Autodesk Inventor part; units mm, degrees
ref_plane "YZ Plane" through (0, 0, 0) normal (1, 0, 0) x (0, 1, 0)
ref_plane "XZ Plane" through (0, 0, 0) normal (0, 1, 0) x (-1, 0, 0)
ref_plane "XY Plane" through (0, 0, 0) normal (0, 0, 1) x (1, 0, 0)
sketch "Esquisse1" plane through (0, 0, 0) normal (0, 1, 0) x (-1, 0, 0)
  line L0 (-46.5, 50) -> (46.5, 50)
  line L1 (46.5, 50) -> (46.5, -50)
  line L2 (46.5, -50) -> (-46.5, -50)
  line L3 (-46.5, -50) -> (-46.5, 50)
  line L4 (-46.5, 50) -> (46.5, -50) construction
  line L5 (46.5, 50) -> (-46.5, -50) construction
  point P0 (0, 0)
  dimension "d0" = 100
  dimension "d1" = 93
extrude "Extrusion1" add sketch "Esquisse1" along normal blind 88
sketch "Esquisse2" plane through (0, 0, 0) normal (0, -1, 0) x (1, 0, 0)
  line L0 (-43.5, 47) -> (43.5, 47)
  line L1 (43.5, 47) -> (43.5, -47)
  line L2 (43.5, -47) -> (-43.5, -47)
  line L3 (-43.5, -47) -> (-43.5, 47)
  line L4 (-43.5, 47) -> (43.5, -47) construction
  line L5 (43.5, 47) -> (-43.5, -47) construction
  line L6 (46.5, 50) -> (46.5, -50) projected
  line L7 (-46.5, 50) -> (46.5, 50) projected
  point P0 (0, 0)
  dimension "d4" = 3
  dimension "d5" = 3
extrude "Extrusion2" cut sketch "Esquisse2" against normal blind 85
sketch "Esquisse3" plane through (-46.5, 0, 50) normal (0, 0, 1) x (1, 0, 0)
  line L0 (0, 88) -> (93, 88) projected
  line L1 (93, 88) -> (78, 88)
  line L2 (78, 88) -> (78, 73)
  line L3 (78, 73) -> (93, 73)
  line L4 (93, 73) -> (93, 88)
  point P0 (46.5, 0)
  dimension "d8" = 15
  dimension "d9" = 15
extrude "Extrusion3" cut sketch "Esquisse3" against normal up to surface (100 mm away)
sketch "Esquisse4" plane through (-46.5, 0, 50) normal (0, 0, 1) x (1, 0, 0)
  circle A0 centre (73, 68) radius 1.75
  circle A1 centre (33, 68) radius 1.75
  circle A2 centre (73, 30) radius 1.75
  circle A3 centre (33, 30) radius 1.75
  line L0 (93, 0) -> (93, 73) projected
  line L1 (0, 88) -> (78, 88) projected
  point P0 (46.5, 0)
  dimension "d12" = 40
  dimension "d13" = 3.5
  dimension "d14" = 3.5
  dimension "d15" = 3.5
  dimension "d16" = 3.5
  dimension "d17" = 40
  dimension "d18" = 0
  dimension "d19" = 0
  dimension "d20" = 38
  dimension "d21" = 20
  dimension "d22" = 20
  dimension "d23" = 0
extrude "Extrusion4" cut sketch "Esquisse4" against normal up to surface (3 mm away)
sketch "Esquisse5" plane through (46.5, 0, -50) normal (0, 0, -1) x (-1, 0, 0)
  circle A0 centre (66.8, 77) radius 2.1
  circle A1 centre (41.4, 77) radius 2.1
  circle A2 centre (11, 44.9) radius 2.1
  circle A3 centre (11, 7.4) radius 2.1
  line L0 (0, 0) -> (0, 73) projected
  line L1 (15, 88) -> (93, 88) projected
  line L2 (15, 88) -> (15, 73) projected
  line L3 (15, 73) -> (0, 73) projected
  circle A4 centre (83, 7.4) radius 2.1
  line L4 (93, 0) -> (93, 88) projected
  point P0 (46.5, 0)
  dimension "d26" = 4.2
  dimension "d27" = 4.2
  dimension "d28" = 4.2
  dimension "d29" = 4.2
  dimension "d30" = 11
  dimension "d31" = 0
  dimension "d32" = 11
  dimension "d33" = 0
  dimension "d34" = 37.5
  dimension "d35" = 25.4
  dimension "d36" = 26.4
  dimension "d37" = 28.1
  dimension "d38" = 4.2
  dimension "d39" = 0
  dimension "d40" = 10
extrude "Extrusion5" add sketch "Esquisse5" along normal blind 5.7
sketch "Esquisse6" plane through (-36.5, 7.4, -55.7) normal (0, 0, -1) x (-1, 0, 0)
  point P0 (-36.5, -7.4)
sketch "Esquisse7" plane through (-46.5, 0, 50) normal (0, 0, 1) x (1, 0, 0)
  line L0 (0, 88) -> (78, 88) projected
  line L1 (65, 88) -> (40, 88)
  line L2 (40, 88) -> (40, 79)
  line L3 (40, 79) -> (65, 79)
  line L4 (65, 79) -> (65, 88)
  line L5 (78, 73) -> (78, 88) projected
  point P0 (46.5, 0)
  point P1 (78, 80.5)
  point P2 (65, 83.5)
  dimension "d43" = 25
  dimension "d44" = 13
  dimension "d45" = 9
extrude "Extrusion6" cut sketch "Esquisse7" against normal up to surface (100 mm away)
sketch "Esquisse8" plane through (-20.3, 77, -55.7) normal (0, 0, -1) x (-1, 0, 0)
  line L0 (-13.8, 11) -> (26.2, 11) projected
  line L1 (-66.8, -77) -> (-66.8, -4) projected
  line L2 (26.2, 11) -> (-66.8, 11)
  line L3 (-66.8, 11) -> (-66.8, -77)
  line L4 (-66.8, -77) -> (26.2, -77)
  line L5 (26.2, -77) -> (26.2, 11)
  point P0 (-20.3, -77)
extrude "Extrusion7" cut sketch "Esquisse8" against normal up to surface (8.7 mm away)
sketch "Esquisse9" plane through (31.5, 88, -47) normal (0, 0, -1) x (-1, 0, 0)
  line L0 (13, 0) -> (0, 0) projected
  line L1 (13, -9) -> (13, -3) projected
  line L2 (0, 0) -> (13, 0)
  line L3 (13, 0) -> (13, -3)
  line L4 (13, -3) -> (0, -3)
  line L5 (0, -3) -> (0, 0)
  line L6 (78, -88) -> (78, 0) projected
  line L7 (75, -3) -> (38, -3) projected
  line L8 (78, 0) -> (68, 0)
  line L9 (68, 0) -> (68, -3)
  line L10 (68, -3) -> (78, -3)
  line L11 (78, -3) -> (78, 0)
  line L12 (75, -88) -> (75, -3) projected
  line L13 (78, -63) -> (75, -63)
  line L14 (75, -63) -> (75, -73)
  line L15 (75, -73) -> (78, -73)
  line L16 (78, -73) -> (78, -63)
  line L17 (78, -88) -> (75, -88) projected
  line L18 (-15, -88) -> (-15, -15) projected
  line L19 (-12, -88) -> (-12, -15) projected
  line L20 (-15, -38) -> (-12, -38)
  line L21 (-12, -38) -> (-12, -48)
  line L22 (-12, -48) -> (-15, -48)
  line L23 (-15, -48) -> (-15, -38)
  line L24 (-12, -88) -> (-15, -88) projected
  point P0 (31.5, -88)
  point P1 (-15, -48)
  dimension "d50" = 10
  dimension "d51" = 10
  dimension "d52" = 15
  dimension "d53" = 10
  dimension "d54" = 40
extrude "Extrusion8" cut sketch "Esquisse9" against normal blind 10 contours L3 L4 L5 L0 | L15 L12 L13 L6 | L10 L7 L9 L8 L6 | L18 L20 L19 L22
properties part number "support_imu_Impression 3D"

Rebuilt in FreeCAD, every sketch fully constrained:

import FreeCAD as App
import Part
import Sketcher

V = App.Vector
Q = App.Units.Quantity

doc = App.newDocument("Part")
body = doc.addObject("PartDesign::Body", "Body")

# Sketch on XZ plane
sketch1 = body.newObject("Sketcher::SketchObject", "Sketch")
sketch1.AttachmentSupport = (doc.getObject("XZ_Plane"), [""])
sketch1.MapMode = "FlatFace"
sketch1.addGeometry(Part.LineSegment(V(-46, 50, 0), V(46, 50, 0)), False)
sketch1.addGeometry(Part.LineSegment(V(46, 50, 0), V(46, -50, 0)), False)
sketch1.addGeometry(Part.LineSegment(V(46, -50, 0), V(-46, -50, 0)), False)
sketch1.addGeometry(Part.LineSegment(V(-46, -50, 0), V(-46, 50, 0)), False)
sketch1.addConstraint(Sketcher.Constraint("Coincident", 0, 2, 1, 1))
sketch1.addConstraint(Sketcher.Constraint("Coincident", 1, 2, 2, 1))
sketch1.addConstraint(Sketcher.Constraint("Coincident", 2, 2, 3, 1))
sketch1.addConstraint(Sketcher.Constraint("Coincident", 3, 2, 0, 1))
sketch1.addConstraint(Sketcher.Constraint("Horizontal", 0))
sketch1.addConstraint(Sketcher.Constraint("Vertical", 1))
sketch1.addConstraint(Sketcher.Constraint("Horizontal", 2))
sketch1.addConstraint(Sketcher.Constraint("Vertical", 3))
sketch1.addConstraint(Sketcher.Constraint("Symmetric", 0, 2, 2, 2, -1, 1))
sketch1.addConstraint(Sketcher.Constraint("DistanceX", 0, 1, 0, 2, Q("93 mm")))
sketch1.addConstraint(Sketcher.Constraint("DistanceY", 1, 2, 1, 1, Q("100 mm")))
pad1 = body.newObject("PartDesign::Pad", "Pad")
pad1.Profile = sketch1
pad1.Length = 88
pad1.Reversed = True

# Sketch on XZ plane
sketch2 = body.newObject("Sketcher::SketchObject", "Sketch001")
sketch2.AttachmentSupport = (doc.getObject("XZ_Plane"), [""])
sketch2.MapMode = "FlatFace"
sketch2.addGeometry(Part.LineSegment(V(44, 47, 0), V(-44, 47, 0)), False)
sketch2.addGeometry(Part.LineSegment(V(-44, 47, 0), V(-44, -47, 0)), False)
sketch2.addGeometry(Part.LineSegment(V(-44, -47, 0), V(44, -47, 0)), False)
sketch2.addGeometry(Part.LineSegment(V(44, -47, 0), V(44, 47, 0)), False)
sketch2.addConstraint(Sketcher.Constraint("Coincident", 0, 2, 1, 1))
sketch2.addConstraint(Sketcher.Constraint("Coincident", 1, 2, 2, 1))
sketch2.addConstraint(Sketcher.Constraint("Coincident", 2, 2, 3, 1))
sketch2.addConstraint(Sketcher.Constraint("Coincident", 3, 2, 0, 1))
sketch2.addConstraint(Sketcher.Constraint("Horizontal", 0))
sketch2.addConstraint(Sketcher.Constraint("Vertical", 1))
sketch2.addConstraint(Sketcher.Constraint("Horizontal", 2))
sketch2.addConstraint(Sketcher.Constraint("Vertical", 3))
sketch2.addConstraint(Sketcher.Constraint("Symmetric", 0, 2, 2, 2, -1, 1))
sketch2.addConstraint(Sketcher.Constraint("DistanceX", 0, 2, 0, 1, Q("87 mm")))
sketch2.addConstraint(Sketcher.Constraint("DistanceY", 1, 2, 1, 1, Q("94 mm")))
pocket1 = body.newObject("PartDesign::Pocket", "Pocket")
pocket1.Profile = sketch2
pocket1.Length = 85

# Sketch on XY plane
sketch3 = body.newObject("Sketcher::SketchObject", "Sketch002")
sketch3.AttachmentSupport = (doc.getObject("XY_Plane"), [""])
sketch3.MapMode = "FlatFace"
sketch3.AttachmentOffset = App.Placement(V(0, 0, 50), App.Rotation())
sketch3.addGeometry(Part.LineSegment(V(46, 88, 0), V(32, 88, 0)), False)
sketch3.addGeometry(Part.LineSegment(V(32, 88, 0), V(32, 73, 0)), False)
sketch3.addGeometry(Part.LineSegment(V(32, 73, 0), V(46, 73, 0)), False)
sketch3.addGeometry(Part.LineSegment(V(46, 73, 0), V(46, 88, 0)), False)
sketch3.addConstraint(Sketcher.Constraint("Coincident", 0, 2, 1, 1))
sketch3.addConstraint(Sketcher.Constraint("Coincident", 1, 2, 2, 1))
sketch3.addConstraint(Sketcher.Constraint("Coincident", 2, 2, 3, 1))
sketch3.addConstraint(Sketcher.Constraint("Coincident", 3, 2, 0, 1))
sketch3.addConstraint(Sketcher.Constraint("Horizontal", 0))
sketch3.addConstraint(Sketcher.Constraint("Vertical", 1))
sketch3.addConstraint(Sketcher.Constraint("Horizontal", 2))
sketch3.addConstraint(Sketcher.Constraint("Vertical", 3))
sketch3.addConstraint(Sketcher.Constraint("Equal", 2, 1))
sketch3.addConstraint(Sketcher.Constraint("DistanceX", 0, 2, 0, 1, Q("15 mm")))
sketch3.addConstraint(Sketcher.Constraint("DistanceY", -1, 1, 0, 2, Q("88 mm")))
sketch3.addConstraint(Sketcher.Constraint("DistanceX", -1, 1, 0, 2, Q("31.5 mm")))
pocket2 = body.newObject("PartDesign::Pocket", "Pocket001")
pocket2.Profile = sketch3
pocket2.Length = 100

# Sketch on XY plane
sketch4 = body.newObject("Sketcher::SketchObject", "Sketch003")
sketch4.AttachmentSupport = (doc.getObject("XY_Plane"), [""])
sketch4.MapMode = "FlatFace"
sketch4.AttachmentOffset = App.Placement(V(0, 0, 50), App.Rotation())
sketch4.addGeometry(Part.Circle(V(26.5, 68, 0), V(0, 0, 1), 1.8), False)
sketch4.addGeometry(Part.Circle(V(-13.5, 68, 0), V(0, 0, 1), 1.8), False)
sketch4.addGeometry(Part.Circle(V(26.5, 30, 0), V(0, 0, 1), 1.8), False)
sketch4.addGeometry(Part.Circle(V(-13.5, 30, 0), V(0, 0, 1), 1.8), False)
sketch4.addConstraint(Sketcher.Constraint("Equal", 0, 1))
sketch4.addConstraint(Sketcher.Constraint("Equal", 1, 2))
sketch4.addConstraint(Sketcher.Constraint("Equal", 2, 3))
sketch4.addConstraint(Sketcher.Constraint("Horizontal", 0, 3, 1, 3))
sketch4.addConstraint(Sketcher.Constraint("Horizontal", 2, 3, 3, 3))
sketch4.addConstraint(Sketcher.Constraint("Vertical", 0, 3, 2, 3))
sketch4.addConstraint(Sketcher.Constraint("Vertical", 1, 3, 3, 3))
sketch4.addConstraint(Sketcher.Constraint("Diameter", 0, Q("3.5 mm")))
sketch4.addConstraint(Sketcher.Constraint("DistanceX", 1, 3, 0, 3, Q("40 mm")))
sketch4.addConstraint(Sketcher.Constraint("DistanceY", 2, 3, 0, 3, Q("38 mm")))
sketch4.addConstraint(Sketcher.Constraint("DistanceY", -1, 1, 0, 3, Q("68 mm")))
sketch4.addConstraint(Sketcher.Constraint("DistanceX", -1, 1, 0, 3, Q("26.5 mm")))
pocket3 = body.newObject("PartDesign::Pocket", "Pocket002")
pocket3.Profile = sketch4
pocket3.Length = 3

# Sketch on XY plane
sketch5 = body.newObject("Sketcher::SketchObject", "Sketch004")
sketch5.AttachmentSupport = (doc.getObject("XY_Plane"), [""])
sketch5.MapMode = "FlatFace"
sketch5.AttachmentOffset = App.Placement(V(0, 0, -50), App.Rotation())
sketch5.addGeometry(Part.Circle(V(-20.3, 77, 0), V(0, 0, 1), 2.1), False)
sketch5.addGeometry(Part.Circle(V(5.1, 77, 0), V(0, 0, 1), 2.1), False)
sketch5.addGeometry(Part.Circle(V(35.5, 44.9, 0), V(0, 0, 1), 2.1), False)
sketch5.addGeometry(Part.Circle(V(35.5, 7.4, 0), V(0, 0, 1), 2.1), False)
sketch5.addGeometry(Part.Circle(V(-36.5, 7.4, 0), V(0, 0, 1), 2.1), False)
sketch5.addConstraint(Sketcher.Constraint("Equal", 0, 1))
sketch5.addConstraint(Sketcher.Constraint("Equal", 1, 2))
sketch5.addConstraint(Sketcher.Constraint("Equal", 2, 3))
sketch5.addConstraint(Sketcher.Constraint("Equal", 3, 4))
sketch5.addConstraint(Sketcher.Constraint("Horizontal", 0, 3, 1, 3))
sketch5.addConstraint(Sketcher.Constraint("Horizontal", 3, 3, 4, 3))
sketch5.addConstraint(Sketcher.Constraint("Vertical", 2, 3, 3, 3))
sketch5.addConstraint(Sketcher.Constraint("Diameter", 0, Q("4.2 mm")))
sketch5.addConstraint(Sketcher.Constraint("DistanceX", 0, 3, 1, 3, Q("25.4 mm")))
sketch5.addConstraint(Sketcher.Constraint("DistanceY", 3, 3, 2, 3, Q("37.5 mm")))
sketch5.addConstraint(Sketcher.Constraint("DistanceY", -1, 1, 0, 3, Q("77 mm")))
sketch5.addConstraint(Sketcher.Constraint("DistanceX", 4, 3, 3, 3, Q("72 mm")))
sketch5.addConstraint(Sketcher.Constraint("DistanceX", 0, 3, -1, 1, Q("20.3 mm")))
sketch5.addConstraint(Sketcher.Constraint("DistanceX", -1, 1, 2, 3, Q("35.5 mm")))
sketch5.addConstraint(Sketcher.Constraint("DistanceY", -1, 1, 2, 3, Q("44.9 mm")))
pad2 = body.newObject("PartDesign::Pad", "Pad001")
pad2.Profile = sketch5
pad2.Length = 5.7
pad2.Reversed = True

# Sketch on XY plane
sketch6 = body.newObject("Sketcher::SketchObject", "Sketch005")
sketch6.AttachmentSupport = (doc.getObject("XY_Plane"), [""])
sketch6.MapMode = "FlatFace"
sketch6.AttachmentOffset = App.Placement(V(0, 0, 50), App.Rotation())
sketch6.addGeometry(Part.LineSegment(V(18, 88, 0), V(-6, 88, 0)), False)
sketch6.addGeometry(Part.LineSegment(V(-6, 88, 0), V(-6, 79, 0)), False)
sketch6.addGeometry(Part.LineSegment(V(-6, 79, 0), V(18, 79, 0)), False)
sketch6.addGeometry(Part.LineSegment(V(18, 79, 0), V(18, 88, 0)), False)
sketch6.addConstraint(Sketcher.Constraint("Coincident", 0, 2, 1, 1))
sketch6.addConstraint(Sketcher.Constraint("Coincident", 1, 2, 2, 1))
sketch6.addConstraint(Sketcher.Constraint("Coincident", 2, 2, 3, 1))
sketch6.addConstraint(Sketcher.Constraint("Coincident", 3, 2, 0, 1))
sketch6.addConstraint(Sketcher.Constraint("Horizontal", 0))
sketch6.addConstraint(Sketcher.Constraint("Vertical", 1))
sketch6.addConstraint(Sketcher.Constraint("Horizontal", 2))
sketch6.addConstraint(Sketcher.Constraint("Vertical", 3))
sketch6.addConstraint(Sketcher.Constraint("DistanceX", 0, 2, 0, 1, Q("25 mm")))
sketch6.addConstraint(Sketcher.Constraint("DistanceY", 1, 2, 1, 1, Q("9 mm")))
sketch6.addConstraint(Sketcher.Constraint("DistanceY", -1, 1, 0, 2, Q("88 mm")))
sketch6.addConstraint(Sketcher.Constraint("DistanceX", 0, 2, -1, 1, Q("6.5 mm")))
pocket4 = body.newObject("PartDesign::Pocket", "Pocket003")
pocket4.Profile = sketch6
pocket4.Length = 100

# Sketch on XY plane
sketch7 = body.newObject("Sketcher::SketchObject", "Sketch006")
sketch7.AttachmentSupport = (doc.getObject("XY_Plane"), [""])
sketch7.MapMode = "FlatFace"
sketch7.AttachmentOffset = App.Placement(V(0, 0, -55.7), App.Rotation())
sketch7.addGeometry(Part.LineSegment(V(-46, 88, 0), V(46, 88, 0)), False)
sketch7.addGeometry(Part.LineSegment(V(46, 88, 0), V(46, 0, 0)), False)
sketch7.addGeometry(Part.LineSegment(V(46, 0, 0), V(-46, 0, 0)), False)
sketch7.addGeometry(Part.LineSegment(V(-46, 0, 0), V(-46, 88, 0)), False)
sketch7.addConstraint(Sketcher.Constraint("Coincident", 0, 2, 1, 1))
sketch7.addConstraint(Sketcher.Constraint("Coincident", 1, 2, 2, 1))
sketch7.addConstraint(Sketcher.Constraint("Coincident", 2, 2, 3, 1))
sketch7.addConstraint(Sketcher.Constraint("Coincident", 3, 2, 0, 1))
sketch7.addConstraint(Sketcher.Constraint("Horizontal", 0))
sketch7.addConstraint(Sketcher.Constraint("Vertical", 1))
sketch7.addConstraint(Sketcher.Constraint("Horizontal", 2))
sketch7.addConstraint(Sketcher.Constraint("Vertical", 3))
sketch7.addConstraint(Sketcher.Constraint("Symmetric", 1, 2, 2, 2, -1, 1))
sketch7.addConstraint(Sketcher.Constraint("DistanceX", 0, 1, 0, 2, Q("93 mm")))
sketch7.addConstraint(Sketcher.Constraint("DistanceY", 1, 2, 1, 1, Q("88 mm")))
pocket5 = body.newObject("PartDesign::Pocket", "Pocket004")
pocket5.Profile = sketch7
pocket5.Length = 8.7
pocket5.Reversed = True

# Sketch on XY plane
sketch8 = body.newObject("Sketcher::SketchObject", "Sketch007")
sketch8.AttachmentSupport = (doc.getObject("XY_Plane"), [""])
sketch8.MapMode = "FlatFace"
sketch8.AttachmentOffset = App.Placement(V(0, 0, -47), App.Rotation())
sketch8.addGeometry(Part.LineSegment(V(18.5, 85, 0), V(18.5, 88, 0)), False)
sketch8.addGeometry(Part.LineSegment(V(18.5, 88, 0), V(31.5, 88, 0)), False)
sketch8.addGeometry(Part.LineSegment(V(31.5, 88, 0), V(31.5, 85, 0)), False)
sketch8.addGeometry(Part.LineSegment(V(31.5, 85, 0), V(18.5, 85, 0)), False)
sketch8.addGeometry(Part.LineSegment(V(-43.5, 15, 0), V(-46.5, 15, 0)), False)
sketch8.addGeometry(Part.LineSegment(V(-46.5, 15, 0), V(-46.5, 25, 0)), False)
sketch8.addGeometry(Part.LineSegment(V(-46.5, 25, 0), V(-43.5, 25, 0)), False)
sketch8.addGeometry(Part.LineSegment(V(-43.5, 25, 0), V(-43.5, 15, 0)), False)
sketch8.addGeometry(Part.LineSegment(V(-36.5, 85, 0), V(-46.5, 85, 0)), False)
sketch8.addGeometry(Part.LineSegment(V(-46.5, 85, 0), V(-46.5, 88, 0)), False)
sketch8.addGeometry(Part.LineSegment(V(-46.5, 88, 0), V(-36.5, 88, 0)), False)
sketch8.addGeometry(Part.LineSegment(V(-36.5, 88, 0), V(-36.5, 85, 0)), False)
sketch8.addGeometry(Part.LineSegment(V(46.5, 50, 0), V(46.5, 40, 0)), False)
sketch8.addGeometry(Part.LineSegment(V(46.5, 40, 0), V(43.5, 40, 0)), False)
sketch8.addGeometry(Part.LineSegment(V(43.5, 40, 0), V(43.5, 50, 0)), False)
sketch8.addGeometry(Part.LineSegment(V(43.5, 50, 0), V(46.5, 50, 0)), False)
sketch8.addConstraint(Sketcher.Constraint("Coincident", 0, 2, 1, 1))
sketch8.addConstraint(Sketcher.Constraint("Coincident", 1, 2, 2, 1))
sketch8.addConstraint(Sketcher.Constraint("Coincident", 2, 2, 3, 1))
sketch8.addConstraint(Sketcher.Constraint("Coincident", 3, 2, 0, 1))
sketch8.addConstraint(Sketcher.Constraint("Coincident", 4, 2, 5, 1))
sketch8.addConstraint(Sketcher.Constraint("Coincident", 5, 2, 6, 1))
sketch8.addConstraint(Sketcher.Constraint("Coincident", 6, 2, 7, 1))
sketch8.addConstraint(Sketcher.Constraint("Coincident", 7, 2, 4, 1))
sketch8.addConstraint(Sketcher.Constraint("Coincident", 8, 2, 9, 1))
sketch8.addConstraint(Sketcher.Constraint("Coincident", 9, 2, 10, 1))
sketch8.addConstraint(Sketcher.Constraint("Coincident", 10, 2, 11, 1))
sketch8.addConstraint(Sketcher.Constraint("Coincident", 11, 2, 8, 1))
sketch8.addConstraint(Sketcher.Constraint("Coincident", 12, 2, 13, 1))
sketch8.addConstraint(Sketcher.Constraint("Coincident", 13, 2, 14, 1))
sketch8.addConstraint(Sketcher.Constraint("Coincident", 14, 2, 15, 1))
sketch8.addConstraint(Sketcher.Constraint("Coincident", 15, 2, 12, 1))
sketch8.addConstraint(Sketcher.Constraint("Vertical", 0))
sketch8.addConstraint(Sketcher.Constraint("Horizontal", 1))
sketch8.addConstraint(Sketcher.Constraint("Vertical", 2))
sketch8.addConstraint(Sketcher.Constraint("Horizontal", 3))
sketch8.addConstraint(Sketcher.Constraint("Horizontal", 4))
sketch8.addConstraint(Sketcher.Constraint("Vertical", 5))
sketch8.addConstraint(Sketcher.Constraint("Horizontal", 6))
sketch8.addConstraint(Sketcher.Constraint("Vertical", 7))
sketch8.addConstraint(Sketcher.Constraint("Horizontal", 8))
sketch8.addConstraint(Sketcher.Constraint("Vertical", 9))
sketch8.addConstraint(Sketcher.Constraint("Horizontal", 10))
sketch8.addConstraint(Sketcher.Constraint("Vertical", 11))
sketch8.addConstraint(Sketcher.Constraint("Vertical", 12))
sketch8.addConstraint(Sketcher.Constraint("Horizontal", 13))
sketch8.addConstraint(Sketcher.Constraint("Vertical", 14))
sketch8.addConstraint(Sketcher.Constraint("Horizontal", 15))
sketch8.addConstraint(Sketcher.Constraint("Horizontal", 3, 2, 8, 2))
sketch8.addConstraint(Sketcher.Constraint("Horizontal", 1, 2, 9, 2))
sketch8.addConstraint(Sketcher.Constraint("Vertical", 5, 2, 8, 2))
sketch8.addConstraint(Sketcher.Constraint("Equal", 6, 13))
sketch8.addConstraint(Sketcher.Constraint("Equal", 15, 0))
sketch8.addConstraint(Sketcher.Constraint("Equal", 10, 5))
sketch8.addConstraint(Sketcher.Constraint("Equal", 7, 12))
sketch8.addConstraint(Sketcher.Constraint("DistanceX", 8, 2, 8, 1, Q("10 mm")))
sketch8.addConstraint(Sketcher.Constraint("DistanceY", -1, 1, 4, 2, Q("15 mm")))
sketch8.addConstraint(Sketcher.Constraint("DistanceY", -1, 1, 12, 2, Q("40 mm")))
sketch8.addConstraint(Sketcher.Constraint("DistanceX", 2, 2, 12, 2, Q("15 mm")))
sketch8.addConstraint(Sketcher.Constraint("DistanceX", 1, 1, 1, 2, Q("13 mm")))
sketch8.addConstraint(Sketcher.Constraint("DistanceX", 4, 2, 4, 1, Q("3 mm")))
sketch8.addConstraint(Sketcher.Constraint("DistanceY", -1, 1, 0, 2, Q("88 mm")))
sketch8.addConstraint(Sketcher.Constraint("DistanceX", 4, 2, 3, 2, Q("65 mm")))
sketch8.addConstraint(Sketcher.Constraint("DistanceX", -1, 1, 0, 2, Q("18.5 mm")))
pocket6 = body.newObject("PartDesign::Pocket", "Pocket005")
pocket6.Profile = sketch8
pocket6.Length = 10
pocket6.Reversed = True

doc.recompute()
